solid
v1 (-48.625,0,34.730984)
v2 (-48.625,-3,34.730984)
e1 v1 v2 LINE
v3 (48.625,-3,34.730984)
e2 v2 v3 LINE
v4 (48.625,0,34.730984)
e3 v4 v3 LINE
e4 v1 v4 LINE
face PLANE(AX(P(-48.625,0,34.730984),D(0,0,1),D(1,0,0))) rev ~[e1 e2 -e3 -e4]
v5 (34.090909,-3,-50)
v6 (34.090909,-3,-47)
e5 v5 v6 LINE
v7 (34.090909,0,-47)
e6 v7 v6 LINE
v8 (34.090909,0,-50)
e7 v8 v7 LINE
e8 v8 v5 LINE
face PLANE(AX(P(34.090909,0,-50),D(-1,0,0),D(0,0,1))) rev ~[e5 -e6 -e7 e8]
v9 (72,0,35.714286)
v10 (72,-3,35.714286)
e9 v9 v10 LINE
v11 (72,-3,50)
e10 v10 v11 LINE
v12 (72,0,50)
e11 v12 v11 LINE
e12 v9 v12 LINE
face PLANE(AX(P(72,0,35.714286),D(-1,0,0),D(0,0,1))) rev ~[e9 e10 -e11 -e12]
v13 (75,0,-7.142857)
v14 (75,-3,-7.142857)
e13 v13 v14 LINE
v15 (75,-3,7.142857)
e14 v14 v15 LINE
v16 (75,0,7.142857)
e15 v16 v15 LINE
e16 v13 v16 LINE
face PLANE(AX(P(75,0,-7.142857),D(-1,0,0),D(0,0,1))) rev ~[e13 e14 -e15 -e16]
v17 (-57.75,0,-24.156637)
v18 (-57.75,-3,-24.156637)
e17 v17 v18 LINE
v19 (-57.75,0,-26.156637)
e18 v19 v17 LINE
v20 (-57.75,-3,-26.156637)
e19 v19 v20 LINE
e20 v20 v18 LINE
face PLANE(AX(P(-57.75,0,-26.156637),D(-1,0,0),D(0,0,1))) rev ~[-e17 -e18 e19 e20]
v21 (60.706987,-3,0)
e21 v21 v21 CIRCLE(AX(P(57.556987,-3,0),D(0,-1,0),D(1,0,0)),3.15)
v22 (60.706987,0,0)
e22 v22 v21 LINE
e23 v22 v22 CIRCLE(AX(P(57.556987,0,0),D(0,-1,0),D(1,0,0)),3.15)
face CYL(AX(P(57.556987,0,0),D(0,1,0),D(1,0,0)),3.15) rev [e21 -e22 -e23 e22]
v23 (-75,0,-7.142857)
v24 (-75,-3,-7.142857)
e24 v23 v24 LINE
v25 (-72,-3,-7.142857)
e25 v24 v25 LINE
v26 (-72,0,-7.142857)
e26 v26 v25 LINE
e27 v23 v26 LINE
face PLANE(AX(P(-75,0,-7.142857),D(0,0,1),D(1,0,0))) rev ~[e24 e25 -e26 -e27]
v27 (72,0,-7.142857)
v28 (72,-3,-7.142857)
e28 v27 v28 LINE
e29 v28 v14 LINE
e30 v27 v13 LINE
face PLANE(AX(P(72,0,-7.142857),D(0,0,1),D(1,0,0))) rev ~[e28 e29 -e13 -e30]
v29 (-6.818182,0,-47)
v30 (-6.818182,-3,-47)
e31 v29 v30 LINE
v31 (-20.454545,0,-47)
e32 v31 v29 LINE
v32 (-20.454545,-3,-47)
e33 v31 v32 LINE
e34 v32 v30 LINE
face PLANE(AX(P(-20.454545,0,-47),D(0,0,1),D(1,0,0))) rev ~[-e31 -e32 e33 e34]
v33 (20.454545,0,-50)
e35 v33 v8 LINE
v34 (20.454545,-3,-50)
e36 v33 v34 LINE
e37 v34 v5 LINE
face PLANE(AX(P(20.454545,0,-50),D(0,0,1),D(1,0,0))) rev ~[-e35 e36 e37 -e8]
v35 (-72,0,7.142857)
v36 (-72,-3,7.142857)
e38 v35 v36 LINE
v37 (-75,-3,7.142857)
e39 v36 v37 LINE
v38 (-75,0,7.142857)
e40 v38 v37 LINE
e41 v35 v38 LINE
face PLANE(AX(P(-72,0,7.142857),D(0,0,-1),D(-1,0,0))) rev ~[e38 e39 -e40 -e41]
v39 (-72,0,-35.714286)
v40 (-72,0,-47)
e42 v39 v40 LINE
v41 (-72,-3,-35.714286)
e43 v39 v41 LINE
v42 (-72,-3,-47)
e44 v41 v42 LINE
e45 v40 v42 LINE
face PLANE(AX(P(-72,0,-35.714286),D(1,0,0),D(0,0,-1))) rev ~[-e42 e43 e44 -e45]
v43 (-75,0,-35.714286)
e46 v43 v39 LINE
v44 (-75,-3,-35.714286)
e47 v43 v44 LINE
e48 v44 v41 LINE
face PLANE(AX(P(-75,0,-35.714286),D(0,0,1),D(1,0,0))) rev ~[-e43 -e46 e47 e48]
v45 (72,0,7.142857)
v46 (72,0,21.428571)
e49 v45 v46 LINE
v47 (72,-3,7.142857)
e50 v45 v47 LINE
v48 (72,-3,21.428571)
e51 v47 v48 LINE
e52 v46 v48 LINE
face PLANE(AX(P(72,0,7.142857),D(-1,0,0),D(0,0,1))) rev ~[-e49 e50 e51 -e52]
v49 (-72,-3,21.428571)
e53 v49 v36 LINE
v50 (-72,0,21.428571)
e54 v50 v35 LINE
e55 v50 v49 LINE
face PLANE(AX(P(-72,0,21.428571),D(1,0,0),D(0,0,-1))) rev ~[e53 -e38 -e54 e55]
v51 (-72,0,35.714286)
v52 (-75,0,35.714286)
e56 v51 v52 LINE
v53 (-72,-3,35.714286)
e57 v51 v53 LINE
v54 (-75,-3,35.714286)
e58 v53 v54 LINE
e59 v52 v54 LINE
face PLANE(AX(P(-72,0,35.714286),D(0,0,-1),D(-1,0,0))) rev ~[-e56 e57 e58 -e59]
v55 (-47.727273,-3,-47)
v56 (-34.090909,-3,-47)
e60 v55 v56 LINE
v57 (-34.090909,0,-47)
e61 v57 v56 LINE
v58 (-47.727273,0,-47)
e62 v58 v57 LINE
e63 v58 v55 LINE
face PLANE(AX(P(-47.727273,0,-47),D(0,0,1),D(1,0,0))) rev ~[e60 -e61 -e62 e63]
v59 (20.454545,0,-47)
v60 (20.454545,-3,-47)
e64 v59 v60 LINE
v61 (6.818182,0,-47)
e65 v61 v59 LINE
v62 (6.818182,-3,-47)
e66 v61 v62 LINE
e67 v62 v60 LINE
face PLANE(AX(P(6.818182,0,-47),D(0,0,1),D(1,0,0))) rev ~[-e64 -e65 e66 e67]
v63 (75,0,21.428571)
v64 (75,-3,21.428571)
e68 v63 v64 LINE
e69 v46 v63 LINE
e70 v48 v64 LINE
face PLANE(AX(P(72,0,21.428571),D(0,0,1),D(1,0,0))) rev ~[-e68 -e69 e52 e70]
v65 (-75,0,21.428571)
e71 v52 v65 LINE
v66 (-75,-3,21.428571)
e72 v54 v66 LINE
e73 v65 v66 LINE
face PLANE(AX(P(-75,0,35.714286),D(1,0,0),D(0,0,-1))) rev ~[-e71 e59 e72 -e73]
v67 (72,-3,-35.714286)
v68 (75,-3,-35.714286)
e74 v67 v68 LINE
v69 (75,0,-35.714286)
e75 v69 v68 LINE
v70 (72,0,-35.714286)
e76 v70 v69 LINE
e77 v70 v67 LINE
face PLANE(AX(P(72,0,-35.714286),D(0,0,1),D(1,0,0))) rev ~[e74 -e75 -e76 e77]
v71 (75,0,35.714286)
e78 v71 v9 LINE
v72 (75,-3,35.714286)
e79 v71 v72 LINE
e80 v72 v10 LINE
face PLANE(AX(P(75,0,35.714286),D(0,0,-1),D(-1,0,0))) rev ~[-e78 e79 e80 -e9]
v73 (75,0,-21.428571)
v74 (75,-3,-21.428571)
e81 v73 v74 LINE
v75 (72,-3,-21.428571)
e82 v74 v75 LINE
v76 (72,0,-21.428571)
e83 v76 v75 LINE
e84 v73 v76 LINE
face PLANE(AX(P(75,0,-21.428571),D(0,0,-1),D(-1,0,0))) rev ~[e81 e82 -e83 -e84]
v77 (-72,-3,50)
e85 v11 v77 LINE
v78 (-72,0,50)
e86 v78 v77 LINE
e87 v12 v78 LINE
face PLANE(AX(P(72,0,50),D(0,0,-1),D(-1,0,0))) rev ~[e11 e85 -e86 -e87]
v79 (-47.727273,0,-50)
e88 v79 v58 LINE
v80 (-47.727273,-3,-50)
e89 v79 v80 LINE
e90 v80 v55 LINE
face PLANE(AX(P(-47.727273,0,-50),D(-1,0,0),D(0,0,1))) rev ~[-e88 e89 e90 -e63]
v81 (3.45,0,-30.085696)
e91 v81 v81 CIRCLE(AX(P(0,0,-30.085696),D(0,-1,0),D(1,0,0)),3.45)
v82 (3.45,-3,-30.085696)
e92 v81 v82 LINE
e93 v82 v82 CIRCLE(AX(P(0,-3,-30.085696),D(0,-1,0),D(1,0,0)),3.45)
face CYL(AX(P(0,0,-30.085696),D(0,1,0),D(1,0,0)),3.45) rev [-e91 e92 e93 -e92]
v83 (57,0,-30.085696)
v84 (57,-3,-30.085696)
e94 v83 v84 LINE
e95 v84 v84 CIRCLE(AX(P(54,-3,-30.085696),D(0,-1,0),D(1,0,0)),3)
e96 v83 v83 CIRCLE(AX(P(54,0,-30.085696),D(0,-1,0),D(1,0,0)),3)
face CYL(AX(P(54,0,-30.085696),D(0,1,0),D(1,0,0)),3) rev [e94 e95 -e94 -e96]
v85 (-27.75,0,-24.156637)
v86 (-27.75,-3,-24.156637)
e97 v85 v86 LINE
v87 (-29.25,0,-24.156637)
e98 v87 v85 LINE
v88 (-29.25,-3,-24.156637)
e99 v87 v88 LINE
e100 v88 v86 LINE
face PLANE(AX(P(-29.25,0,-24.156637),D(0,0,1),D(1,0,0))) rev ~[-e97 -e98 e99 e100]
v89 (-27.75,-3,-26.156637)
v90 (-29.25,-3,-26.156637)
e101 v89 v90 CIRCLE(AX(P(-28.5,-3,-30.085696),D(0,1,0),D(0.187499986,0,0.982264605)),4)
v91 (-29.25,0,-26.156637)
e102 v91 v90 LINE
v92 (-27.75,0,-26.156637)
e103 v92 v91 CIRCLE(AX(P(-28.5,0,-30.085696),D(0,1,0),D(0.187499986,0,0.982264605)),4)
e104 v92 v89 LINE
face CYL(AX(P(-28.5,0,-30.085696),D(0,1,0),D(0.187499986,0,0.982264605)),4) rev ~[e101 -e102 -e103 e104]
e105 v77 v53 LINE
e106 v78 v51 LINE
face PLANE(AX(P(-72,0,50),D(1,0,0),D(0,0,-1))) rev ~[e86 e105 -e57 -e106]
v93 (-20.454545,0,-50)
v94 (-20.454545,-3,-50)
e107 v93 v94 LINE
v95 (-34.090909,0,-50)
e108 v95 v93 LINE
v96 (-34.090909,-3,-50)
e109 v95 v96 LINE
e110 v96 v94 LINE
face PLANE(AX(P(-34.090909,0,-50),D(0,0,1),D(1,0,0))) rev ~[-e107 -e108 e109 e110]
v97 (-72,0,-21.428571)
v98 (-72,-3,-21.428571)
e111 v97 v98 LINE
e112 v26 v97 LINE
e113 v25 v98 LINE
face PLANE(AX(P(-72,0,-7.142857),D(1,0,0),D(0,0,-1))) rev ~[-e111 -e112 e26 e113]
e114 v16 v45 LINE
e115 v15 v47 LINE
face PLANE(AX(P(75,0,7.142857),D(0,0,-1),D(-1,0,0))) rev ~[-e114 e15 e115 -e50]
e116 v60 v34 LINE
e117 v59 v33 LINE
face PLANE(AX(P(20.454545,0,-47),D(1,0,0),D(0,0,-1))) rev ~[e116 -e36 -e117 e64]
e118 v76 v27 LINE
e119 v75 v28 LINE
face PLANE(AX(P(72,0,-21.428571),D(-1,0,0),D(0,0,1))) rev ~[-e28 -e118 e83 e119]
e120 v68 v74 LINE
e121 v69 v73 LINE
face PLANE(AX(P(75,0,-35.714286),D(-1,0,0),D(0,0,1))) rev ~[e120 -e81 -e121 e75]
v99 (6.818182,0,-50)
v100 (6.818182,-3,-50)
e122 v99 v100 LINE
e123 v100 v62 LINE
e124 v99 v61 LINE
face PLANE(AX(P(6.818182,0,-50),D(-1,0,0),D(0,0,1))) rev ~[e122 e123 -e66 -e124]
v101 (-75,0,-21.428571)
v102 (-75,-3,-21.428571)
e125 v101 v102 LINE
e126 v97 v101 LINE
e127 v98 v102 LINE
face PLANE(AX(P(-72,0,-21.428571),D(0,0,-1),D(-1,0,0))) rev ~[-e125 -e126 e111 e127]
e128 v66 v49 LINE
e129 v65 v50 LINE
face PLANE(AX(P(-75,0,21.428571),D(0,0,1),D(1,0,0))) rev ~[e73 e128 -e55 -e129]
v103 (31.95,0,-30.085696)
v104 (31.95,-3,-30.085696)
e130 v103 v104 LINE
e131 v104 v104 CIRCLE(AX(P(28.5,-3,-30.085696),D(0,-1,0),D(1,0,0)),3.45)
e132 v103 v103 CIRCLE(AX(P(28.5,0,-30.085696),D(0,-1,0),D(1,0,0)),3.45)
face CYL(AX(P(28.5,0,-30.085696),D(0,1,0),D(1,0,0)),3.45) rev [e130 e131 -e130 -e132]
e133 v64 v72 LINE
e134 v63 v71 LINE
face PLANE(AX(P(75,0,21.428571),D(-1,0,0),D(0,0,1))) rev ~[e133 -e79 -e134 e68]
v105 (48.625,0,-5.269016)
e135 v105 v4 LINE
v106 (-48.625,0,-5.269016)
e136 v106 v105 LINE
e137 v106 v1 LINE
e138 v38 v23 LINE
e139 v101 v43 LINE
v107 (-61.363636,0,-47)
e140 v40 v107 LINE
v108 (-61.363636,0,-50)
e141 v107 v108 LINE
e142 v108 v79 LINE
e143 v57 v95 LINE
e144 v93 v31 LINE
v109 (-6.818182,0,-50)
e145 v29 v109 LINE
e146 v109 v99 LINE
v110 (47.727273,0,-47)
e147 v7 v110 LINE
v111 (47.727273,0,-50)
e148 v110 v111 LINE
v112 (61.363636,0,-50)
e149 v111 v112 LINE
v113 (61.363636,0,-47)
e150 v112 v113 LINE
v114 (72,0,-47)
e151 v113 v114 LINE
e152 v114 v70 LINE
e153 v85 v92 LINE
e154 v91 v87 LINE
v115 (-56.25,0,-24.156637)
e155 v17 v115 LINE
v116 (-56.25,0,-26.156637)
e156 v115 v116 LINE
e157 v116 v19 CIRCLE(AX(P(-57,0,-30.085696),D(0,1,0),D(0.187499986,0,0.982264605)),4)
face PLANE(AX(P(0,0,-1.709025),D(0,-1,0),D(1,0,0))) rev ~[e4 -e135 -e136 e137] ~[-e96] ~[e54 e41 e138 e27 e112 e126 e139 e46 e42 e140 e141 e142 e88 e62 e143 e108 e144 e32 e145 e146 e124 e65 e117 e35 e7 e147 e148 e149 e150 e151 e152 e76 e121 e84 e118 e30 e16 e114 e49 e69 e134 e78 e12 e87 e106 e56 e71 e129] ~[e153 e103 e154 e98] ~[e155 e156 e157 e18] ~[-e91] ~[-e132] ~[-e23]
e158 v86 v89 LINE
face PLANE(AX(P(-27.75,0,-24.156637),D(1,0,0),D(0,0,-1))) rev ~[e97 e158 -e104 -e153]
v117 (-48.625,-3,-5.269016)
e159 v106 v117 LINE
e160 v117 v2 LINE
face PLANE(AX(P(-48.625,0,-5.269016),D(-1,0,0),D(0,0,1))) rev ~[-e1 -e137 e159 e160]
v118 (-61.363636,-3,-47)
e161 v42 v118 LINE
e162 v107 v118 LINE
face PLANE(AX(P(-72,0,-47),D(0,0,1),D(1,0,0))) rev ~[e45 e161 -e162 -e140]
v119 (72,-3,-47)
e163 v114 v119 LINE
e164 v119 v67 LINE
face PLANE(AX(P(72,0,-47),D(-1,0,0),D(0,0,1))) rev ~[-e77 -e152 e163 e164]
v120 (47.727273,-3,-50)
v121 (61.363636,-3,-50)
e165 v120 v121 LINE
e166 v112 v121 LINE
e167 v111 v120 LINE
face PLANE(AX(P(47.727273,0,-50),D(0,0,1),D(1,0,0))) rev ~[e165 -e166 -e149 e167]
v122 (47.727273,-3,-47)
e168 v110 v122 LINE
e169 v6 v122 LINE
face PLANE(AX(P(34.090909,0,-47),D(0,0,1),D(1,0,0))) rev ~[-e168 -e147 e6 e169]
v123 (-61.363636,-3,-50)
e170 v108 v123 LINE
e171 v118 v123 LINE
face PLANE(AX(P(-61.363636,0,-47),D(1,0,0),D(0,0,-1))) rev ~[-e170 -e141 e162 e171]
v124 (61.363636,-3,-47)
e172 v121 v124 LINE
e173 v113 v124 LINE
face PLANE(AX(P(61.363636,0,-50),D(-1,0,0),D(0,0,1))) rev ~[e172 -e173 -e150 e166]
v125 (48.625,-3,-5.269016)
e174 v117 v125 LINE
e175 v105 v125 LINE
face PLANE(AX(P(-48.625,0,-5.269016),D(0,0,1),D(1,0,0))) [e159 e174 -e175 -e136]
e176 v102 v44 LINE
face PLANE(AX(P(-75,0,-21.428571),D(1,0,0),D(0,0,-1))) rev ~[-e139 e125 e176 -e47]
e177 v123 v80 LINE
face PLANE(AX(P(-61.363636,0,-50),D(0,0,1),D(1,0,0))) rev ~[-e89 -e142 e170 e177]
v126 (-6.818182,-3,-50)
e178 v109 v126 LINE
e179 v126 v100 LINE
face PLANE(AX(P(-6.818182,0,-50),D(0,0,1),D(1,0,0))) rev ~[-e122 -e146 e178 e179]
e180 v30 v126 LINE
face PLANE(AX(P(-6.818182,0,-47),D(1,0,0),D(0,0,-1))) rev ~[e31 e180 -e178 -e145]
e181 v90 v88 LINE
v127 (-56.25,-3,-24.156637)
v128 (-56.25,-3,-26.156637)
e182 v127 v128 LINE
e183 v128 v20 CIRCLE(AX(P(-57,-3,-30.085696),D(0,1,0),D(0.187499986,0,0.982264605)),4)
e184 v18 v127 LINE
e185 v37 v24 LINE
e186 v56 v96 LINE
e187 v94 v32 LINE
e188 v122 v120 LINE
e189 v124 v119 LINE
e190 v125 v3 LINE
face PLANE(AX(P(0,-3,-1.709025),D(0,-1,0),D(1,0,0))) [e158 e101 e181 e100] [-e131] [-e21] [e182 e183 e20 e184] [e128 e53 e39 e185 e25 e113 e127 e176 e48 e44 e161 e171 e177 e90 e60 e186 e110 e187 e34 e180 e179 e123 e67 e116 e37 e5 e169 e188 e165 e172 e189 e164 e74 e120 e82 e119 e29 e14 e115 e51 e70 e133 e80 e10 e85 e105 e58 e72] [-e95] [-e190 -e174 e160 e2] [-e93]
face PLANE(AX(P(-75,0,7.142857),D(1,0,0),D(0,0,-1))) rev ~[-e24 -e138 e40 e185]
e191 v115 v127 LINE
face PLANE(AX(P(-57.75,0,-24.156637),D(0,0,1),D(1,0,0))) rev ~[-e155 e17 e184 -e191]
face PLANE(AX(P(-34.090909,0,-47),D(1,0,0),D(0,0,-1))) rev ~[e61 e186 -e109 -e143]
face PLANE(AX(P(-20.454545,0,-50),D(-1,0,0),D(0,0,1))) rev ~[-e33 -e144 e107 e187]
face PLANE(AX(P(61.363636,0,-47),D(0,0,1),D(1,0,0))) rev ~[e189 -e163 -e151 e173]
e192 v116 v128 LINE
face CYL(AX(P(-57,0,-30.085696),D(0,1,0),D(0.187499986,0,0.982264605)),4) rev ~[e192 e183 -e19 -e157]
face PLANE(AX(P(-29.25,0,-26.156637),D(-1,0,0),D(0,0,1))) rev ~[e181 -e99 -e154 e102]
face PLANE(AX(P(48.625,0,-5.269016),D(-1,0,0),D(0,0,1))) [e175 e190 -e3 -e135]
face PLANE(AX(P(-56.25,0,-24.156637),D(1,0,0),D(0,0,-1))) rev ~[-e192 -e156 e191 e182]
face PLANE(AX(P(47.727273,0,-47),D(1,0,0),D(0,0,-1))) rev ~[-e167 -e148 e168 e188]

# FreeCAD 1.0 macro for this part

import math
import FreeCAD as App
import Part
import Sketcher


def add_polygon(sketch, points):
    """Adds a closed chain of lines whose ends are joined by coincident constraints."""
    first, n = sketch.GeometryCount, len(points)
    for a, b in zip(points, points[1:] + points[:1]):
        sketch.addGeometry(Part.LineSegment(App.Vector(*a, 0), App.Vector(*b, 0)), False)
    for i in range(n):
        sketch.addConstraint(Sketcher.Constraint("Coincident", first + i, 2, first + (i + 1) % n, 1))

doc = App.newDocument("Part")
body = doc.addObject("PartDesign::Body", "Body")

# Sketch on XZ plane
sketch1 = body.newObject("Sketcher::SketchObject", "Sketch")
sketch1.AttachmentSupport = (doc.getObject("XZ_Plane"), [""])
sketch1.MapMode = "FlatFace"
add_polygon(sketch1, [(47.7, -50), (61.4, -50), (61.4, -47), (72, -47), (72, -35.7), (75, -35.7), (75, -21.4), (72, -21.4), (72, -7.1), (75, -7.1), (75, 7.1), (72, 7.1), (72, 21.4), (75, 21.4), (75, 35.7), (72, 35.7), (72, 50), (-72, 50), (-72, 35.7), (-75, 35.7), (-75, 21.4), (-72, 21.4), (-72, 7.1), (-75, 7.1), (-75, -7.1), (-72, -7.1), (-72, -21.4), (-75, -21.4), (-75, -35.7), (-72, -35.7), (-72, -47), (-61.4, -47), (-61.4, -50), (-47.7, -50), (-47.7, -47), (-34.1, -47), (-34.1, -50), (-20.5, -50), (-20.5, -47), (-6.8, -47), (-6.8, -50), (6.8, -50), (6.8, -47), (20.5, -47), (20.5, -50), (34.1, -50), (34.1, -47), (47.7, -47)])  # lines 0-47
sketch1.addGeometry(Part.LineSegment(App.Vector(-56.2, -24.2, 0), App.Vector(-56.2, -26.2, 0)), False)  # 48
sketch1.addGeometry(Part.ArcOfCircle(Part.Circle(App.Vector(-57, -30.1, 0), App.Vector(0, 0, 1), 4), math.radians(101), math.radians(439)), False)  # 49
sketch1.addGeometry(Part.LineSegment(App.Vector(-57.8, -26.2, 0), App.Vector(-57.8, -24.2, 0)), False)  # 50
sketch1.addGeometry(Part.LineSegment(App.Vector(-57.8, -24.2, 0), App.Vector(-56.2, -24.2, 0)), False)  # 51
sketch1.addGeometry(Part.LineSegment(App.Vector(-27.8, -24.2, 0), App.Vector(-27.8, -26.2, 0)), False)  # 52
sketch1.addGeometry(Part.ArcOfCircle(Part.Circle(App.Vector(-28.5, -30.1, 0), App.Vector(0, 0, 1), 4), math.radians(101), math.radians(439)), False)  # 53
sketch1.addGeometry(Part.LineSegment(App.Vector(-29.2, -26.2, 0), App.Vector(-29.2, -24.2, 0)), False)  # 54
sketch1.addGeometry(Part.LineSegment(App.Vector(-29.2, -24.2, 0), App.Vector(-27.8, -24.2, 0)), False)  # 55
sketch1.addGeometry(Part.Circle(App.Vector(0, -30.1, 0), App.Vector(0, 0, 1), 3.5), False)  # 56
sketch1.addGeometry(Part.Circle(App.Vector(28.5, -30.1, 0), App.Vector(0, 0, 1), 3.5), False)  # 57
sketch1.addGeometry(Part.Circle(App.Vector(54, -30.1, 0), App.Vector(0, 0, 1), 3), False)  # 58
sketch1.addGeometry(Part.Circle(App.Vector(57.6, 0, 0), App.Vector(0, 0, 1), 3.1), False)  # 59
add_polygon(sketch1, [(48.6, -5.3), (-48.6, -5.3), (-48.6, 34.7), (48.6, 34.7)])  # lines 60-63
sketch1.addConstraint([
    Sketcher.Constraint("Coincident", 48, 2, 49, 2),
    Sketcher.Constraint("Coincident", 49, 1, 50, 1),
    Sketcher.Constraint("Coincident", 50, 2, 51, 1),
    Sketcher.Constraint("Coincident", 51, 2, 48, 1),
    Sketcher.Constraint("Coincident", 52, 2, 53, 2),
    Sketcher.Constraint("Coincident", 53, 1, 54, 1),
    Sketcher.Constraint("Coincident", 54, 2, 55, 1),
    Sketcher.Constraint("Coincident", 55, 2, 52, 1),
    Sketcher.Constraint("Horizontal", 0),
    Sketcher.Constraint("Vertical", 1),
    Sketcher.Constraint("Horizontal", 2),
    Sketcher.Constraint("Vertical", 3),
    Sketcher.Constraint("Horizontal", 4),
    Sketcher.Constraint("Vertical", 5),
    Sketcher.Constraint("Horizontal", 6),
    Sketcher.Constraint("Vertical", 7),
    Sketcher.Constraint("Horizontal", 8),
    Sketcher.Constraint("Vertical", 9),
    Sketcher.Constraint("Horizontal", 10),
    Sketcher.Constraint("Vertical", 11),
    Sketcher.Constraint("Horizontal", 12),
    Sketcher.Constraint("Vertical", 13),
    Sketcher.Constraint("Horizontal", 14),
    Sketcher.Constraint("Vertical", 15),
    Sketcher.Constraint("Horizontal", 16),
    Sketcher.Constraint("Vertical", 17),
    Sketcher.Constraint("Horizontal", 18),
    Sketcher.Constraint("Vertical", 19),
    Sketcher.Constraint("Horizontal", 20),
    Sketcher.Constraint("Vertical", 21),
    Sketcher.Constraint("Horizontal", 22),
    Sketcher.Constraint("Vertical", 23),
    Sketcher.Constraint("Horizontal", 24),
    Sketcher.Constraint("Vertical", 25),
    Sketcher.Constraint("Horizontal", 26),
    Sketcher.Constraint("Vertical", 27),
    Sketcher.Constraint("Horizontal", 28),
    Sketcher.Constraint("Vertical", 29),
    Sketcher.Constraint("Horizontal", 30),
    Sketcher.Constraint("Vertical", 31),
    Sketcher.Constraint("Horizontal", 32),
    Sketcher.Constraint("Vertical", 33),
    Sketcher.Constraint("Horizontal", 34),
    Sketcher.Constraint("Vertical", 35),
    Sketcher.Constraint("Horizontal", 36),
    Sketcher.Constraint("Vertical", 37),
    Sketcher.Constraint("Horizontal", 38),
    Sketcher.Constraint("Vertical", 39),
    Sketcher.Constraint("Horizontal", 40),
    Sketcher.Constraint("Vertical", 41),
    Sketcher.Constraint("Horizontal", 42),
    Sketcher.Constraint("Vertical", 43),
    Sketcher.Constraint("Horizontal", 44),
    Sketcher.Constraint("Vertical", 45),
    Sketcher.Constraint("Horizontal", 46),
    Sketcher.Constraint("Vertical", 47),
    Sketcher.Constraint("Vertical", 48),
    Sketcher.Constraint("Vertical", 50),
    Sketcher.Constraint("Horizontal", 51),
    Sketcher.Constraint("Vertical", 52),
    Sketcher.Constraint("Vertical", 54),
    Sketcher.Constraint("Horizontal", 55),
    Sketcher.Constraint("Horizontal", 60),
    Sketcher.Constraint("Vertical", 61),
    Sketcher.Constraint("Horizontal", 62),
    Sketcher.Constraint("Vertical", 63),
    Sketcher.Constraint("Equal", 49, 53),
    Sketcher.Constraint("Equal", 56, 57),
    Sketcher.Constraint("Symmetric", 3, 2, 17, 2, -1, 1),
    Sketcher.Constraint("Symmetric", 5, 2, 19, 2, -1, 1),
    Sketcher.Constraint("Symmetric", 7, 2, 21, 2, -1, 1),
    Sketcher.Constraint("Symmetric", 9, 2, 23, 2, -1, 1),
    Sketcher.Constraint("Symmetric", 11, 2, 25, 2, -1, 1),
    Sketcher.Constraint("Symmetric", 13, 2, 27, 2, -1, 1),
    Sketcher.Constraint("Symmetric", 53, 3, 57, 3, -2),
    Sketcher.Constraint("Symmetric", 14, 2, 17, 2, -2),
    Sketcher.Constraint("Symmetric", 12, 2, 19, 2, -2),
    Sketcher.Constraint("Symmetric", 10, 2, 21, 2, -2),
    Sketcher.Constraint("Symmetric", 2, 2, 29, 2, -2),
    Sketcher.Constraint("Symmetric", 0, 2, 31, 2, -2),
    Sketcher.Constraint("Symmetric", 38, 2, 41, 2, -2),
    Sketcher.Constraint("Symmetric", 36, 2, 43, 2, -2),
    Sketcher.Constraint("Symmetric", 34, 2, 45, 2, -2),
    Sketcher.Constraint("PointOnObject", 56, 3, -2),
    Sketcher.Constraint("PointOnObject", 59, 3, -1),
    Sketcher.Constraint("Horizontal", 49, 3, 53, 3),
    Sketcher.Constraint("Horizontal", 53, 3, 56, 3),
    Sketcher.Constraint("Horizontal", 57, 3, 58, 3),
    Sketcher.Constraint("Horizontal", 30, 2, 33, 2),
    Sketcher.Constraint("Horizontal", 32, 2, 35, 2),
    Sketcher.Constraint("Horizontal", 34, 2, 37, 2),
    Sketcher.Constraint("Horizontal", 36, 2, 39, 2),
    Sketcher.Constraint("Horizontal", 48, 2, 49, 1),
    Sketcher.Constraint("Horizontal", 49, 1, 52, 2),
    Sketcher.Constraint("Horizontal", 52, 2, 53, 1),
    Sketcher.Constraint("Horizontal", 51, 2, 54, 2),
    Sketcher.Constraint("Vertical", 3, 2, 6, 2),
    Sketcher.Constraint("Vertical", 5, 2, 8, 2),
    Sketcher.Constraint("Equal", 0, 32),
    Sketcher.Constraint("Equal", 32, 34),
    Sketcher.Constraint("Equal", 34, 36),
    Sketcher.Constraint("Equal", 36, 38),
    Sketcher.Constraint("Equal", 38, 40),
    Sketcher.Constraint("Equal", 28, 1),
    Sketcher.Constraint("Equal", 5, 7),
    Sketcher.Constraint("Equal", 7, 9),
    Sketcher.Constraint("Equal", 13, 15),
    Sketcher.Constraint("Diameter", 58, 6.0),
    Sketcher.Constraint("Radius", 49, 4.0),
    Sketcher.Constraint("Diameter", 56, 6.9),
    Sketcher.Constraint("Diameter", 59, 6.3),
    Sketcher.Constraint("DistanceX", 4, 1, 4, 2, 3.0),
    Sketcher.Constraint("DistanceX", 16, 2, 16, 1, 144.0),
    Sketcher.Constraint("DistanceY", 48, 2, 48, 1, 2.0),
    Sketcher.Constraint("DistanceY", 61, 1, 61, 2, 40.0),
    Sketcher.Constraint("DistanceX", 51, 1, 51, 2, 1.5),
    Sketcher.Constraint("DistanceX", 49, 3, -1, 1, 57.0),
    Sketcher.Constraint("DistanceX", -1, 1, 58, 3, 54.0),
    Sketcher.Constraint("DistanceY", 0, 2, -1, 1, 50.0),
    Sketcher.Constraint("DistanceY", -1, 1, 15, 2, 50.0),
    Sketcher.Constraint("DistanceX", 60, 2, 60, 1, 97.25),
    Sketcher.Constraint("DistanceX", 53, 3, -1, 1, 28.5),
    Sketcher.Constraint("DistanceX", 60, 2, -1, 1, 48.625),
    Sketcher.Constraint("DistanceX", 0, 1, 0, 2, 13.636363),
    Sketcher.Constraint("DistanceY", 49, 3, -1, 1, 30.085696),
    Sketcher.Constraint("DistanceX", -1, 1, 59, 3, 57.556987),
    Sketcher.Constraint("DistanceY", 60, 2, -1, 1, 5.269016),
])
pad1 = body.newObject("PartDesign::Pad", "Pad")
pad1.Profile = sketch1
pad1.Length = 3

doc.recompute()
